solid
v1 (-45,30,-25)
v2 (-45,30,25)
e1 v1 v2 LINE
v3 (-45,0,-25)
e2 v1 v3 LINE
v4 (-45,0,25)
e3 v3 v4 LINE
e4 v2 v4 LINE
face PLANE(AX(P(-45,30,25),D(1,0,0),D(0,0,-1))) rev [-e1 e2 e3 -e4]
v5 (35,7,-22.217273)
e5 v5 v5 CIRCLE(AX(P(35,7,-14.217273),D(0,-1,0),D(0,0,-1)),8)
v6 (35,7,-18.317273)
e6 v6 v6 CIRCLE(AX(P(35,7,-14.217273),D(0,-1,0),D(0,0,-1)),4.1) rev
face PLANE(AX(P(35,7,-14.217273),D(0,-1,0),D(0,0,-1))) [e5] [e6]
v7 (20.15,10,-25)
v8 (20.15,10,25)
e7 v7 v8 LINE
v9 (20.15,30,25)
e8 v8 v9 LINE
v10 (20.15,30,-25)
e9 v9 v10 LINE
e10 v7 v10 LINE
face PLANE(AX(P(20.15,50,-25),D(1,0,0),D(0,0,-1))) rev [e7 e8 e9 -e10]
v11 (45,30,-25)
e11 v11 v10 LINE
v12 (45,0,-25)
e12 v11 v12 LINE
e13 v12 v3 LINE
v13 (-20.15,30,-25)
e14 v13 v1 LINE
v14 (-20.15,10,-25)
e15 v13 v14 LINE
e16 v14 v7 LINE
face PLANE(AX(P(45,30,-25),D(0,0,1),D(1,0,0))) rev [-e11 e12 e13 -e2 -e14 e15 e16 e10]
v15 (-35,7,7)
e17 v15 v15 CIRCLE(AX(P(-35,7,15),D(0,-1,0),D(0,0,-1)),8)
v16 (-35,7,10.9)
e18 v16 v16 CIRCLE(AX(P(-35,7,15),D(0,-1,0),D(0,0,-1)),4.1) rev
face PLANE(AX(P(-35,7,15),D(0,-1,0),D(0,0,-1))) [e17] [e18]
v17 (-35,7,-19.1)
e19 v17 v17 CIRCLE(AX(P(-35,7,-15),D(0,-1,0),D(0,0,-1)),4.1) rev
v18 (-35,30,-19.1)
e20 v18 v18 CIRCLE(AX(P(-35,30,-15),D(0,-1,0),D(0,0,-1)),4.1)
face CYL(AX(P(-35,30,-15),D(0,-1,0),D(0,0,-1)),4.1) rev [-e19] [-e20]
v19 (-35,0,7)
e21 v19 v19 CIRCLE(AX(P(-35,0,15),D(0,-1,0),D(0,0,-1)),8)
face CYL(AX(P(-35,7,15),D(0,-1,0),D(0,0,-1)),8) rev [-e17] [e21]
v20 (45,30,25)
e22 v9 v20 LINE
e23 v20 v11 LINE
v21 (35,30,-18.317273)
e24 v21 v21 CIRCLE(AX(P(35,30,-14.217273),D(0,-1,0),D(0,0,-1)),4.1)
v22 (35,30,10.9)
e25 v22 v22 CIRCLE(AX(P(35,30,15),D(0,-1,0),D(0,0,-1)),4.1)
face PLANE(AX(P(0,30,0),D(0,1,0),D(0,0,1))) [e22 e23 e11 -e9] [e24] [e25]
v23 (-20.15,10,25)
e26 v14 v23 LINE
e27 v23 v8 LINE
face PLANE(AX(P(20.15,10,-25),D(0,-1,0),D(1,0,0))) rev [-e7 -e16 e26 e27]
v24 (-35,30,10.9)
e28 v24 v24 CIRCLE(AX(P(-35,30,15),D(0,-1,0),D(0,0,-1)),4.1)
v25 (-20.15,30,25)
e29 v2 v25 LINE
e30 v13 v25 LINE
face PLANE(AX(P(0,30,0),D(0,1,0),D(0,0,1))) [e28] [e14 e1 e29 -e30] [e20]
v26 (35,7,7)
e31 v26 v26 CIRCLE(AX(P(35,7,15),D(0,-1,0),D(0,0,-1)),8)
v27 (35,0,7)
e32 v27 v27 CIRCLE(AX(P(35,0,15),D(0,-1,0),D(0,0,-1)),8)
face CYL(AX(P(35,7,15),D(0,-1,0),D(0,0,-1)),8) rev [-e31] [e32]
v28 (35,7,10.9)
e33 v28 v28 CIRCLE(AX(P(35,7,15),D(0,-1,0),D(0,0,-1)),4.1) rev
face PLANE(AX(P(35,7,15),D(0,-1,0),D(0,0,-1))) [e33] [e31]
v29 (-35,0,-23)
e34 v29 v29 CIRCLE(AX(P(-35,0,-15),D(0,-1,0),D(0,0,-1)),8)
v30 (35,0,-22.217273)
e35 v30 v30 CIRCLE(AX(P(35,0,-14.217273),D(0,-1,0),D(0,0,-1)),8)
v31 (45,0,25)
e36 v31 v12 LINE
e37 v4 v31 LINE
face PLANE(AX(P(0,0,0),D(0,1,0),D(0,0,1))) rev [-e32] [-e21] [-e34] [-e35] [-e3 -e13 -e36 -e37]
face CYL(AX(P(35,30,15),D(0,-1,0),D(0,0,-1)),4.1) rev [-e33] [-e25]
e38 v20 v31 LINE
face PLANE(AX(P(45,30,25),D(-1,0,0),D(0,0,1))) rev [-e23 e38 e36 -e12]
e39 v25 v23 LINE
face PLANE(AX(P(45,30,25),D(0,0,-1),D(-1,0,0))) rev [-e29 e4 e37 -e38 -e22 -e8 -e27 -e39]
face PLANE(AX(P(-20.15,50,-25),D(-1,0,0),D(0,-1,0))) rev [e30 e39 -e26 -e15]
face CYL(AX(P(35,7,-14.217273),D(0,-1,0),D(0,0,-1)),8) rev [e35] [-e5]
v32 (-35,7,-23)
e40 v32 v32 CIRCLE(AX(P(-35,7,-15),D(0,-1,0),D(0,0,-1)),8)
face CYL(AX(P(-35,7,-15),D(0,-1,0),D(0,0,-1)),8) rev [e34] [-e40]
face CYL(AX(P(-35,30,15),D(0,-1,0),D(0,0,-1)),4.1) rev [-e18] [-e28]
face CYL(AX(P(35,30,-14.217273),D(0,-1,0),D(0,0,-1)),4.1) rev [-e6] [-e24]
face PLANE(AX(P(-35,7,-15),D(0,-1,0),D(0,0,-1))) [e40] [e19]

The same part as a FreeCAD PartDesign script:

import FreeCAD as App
import Part
import Sketcher
Q = App.Units.Quantity

doc = App.newDocument("Part")
body = doc.addObject("PartDesign::Body", "Body")

sketch1 = doc.addObject("Sketcher::SketchObject", "Sketch")
body.addObject(sketch1)
sketch1.AttachmentSupport = (doc.XZ_Plane, [""])
sketch1.MapMode = "FlatFace"
sketch1.addGeometry([
    Part.LineSegment(App.Vector(-45, -25, 0), App.Vector(-45, 25, 0)),
    Part.LineSegment(App.Vector(-45, 25, 0), App.Vector(45, 25, 0)),
    Part.LineSegment(App.Vector(45, 25, 0), App.Vector(45, -25, 0)),
    Part.LineSegment(App.Vector(45, -25, 0), App.Vector(-45, -25, 0)),
], False)
sketch1.addConstraint([
    Sketcher.Constraint("Coincident", 0, 2, 1, 1),
    Sketcher.Constraint("Coincident", 1, 2, 2, 1),
    Sketcher.Constraint("Coincident", 2, 2, 3, 1),
    Sketcher.Constraint("Coincident", 3, 2, 0, 1),
    Sketcher.Constraint("Vertical", 0),
    Sketcher.Constraint("Horizontal", 1),
    Sketcher.Constraint("Vertical", 2),
    Sketcher.Constraint("Horizontal", 3),
    Sketcher.Constraint("Symmetric", 0, 2, 2, 2, -1, 1),
    Sketcher.Constraint("DistanceX", 1, 1, 1, 2, Q("90 mm")),
    Sketcher.Constraint("DistanceY", 0, 1, 0, 2, Q("50 mm")),
])
pad1 = doc.addObject("PartDesign::Pad", "Pad")
body.addObject(pad1)
pad1.Profile = sketch1
pad1.Length = 30
pad1.Reversed = True

sketch2 = doc.addObject("Sketcher::SketchObject", "Sketch001")
body.addObject(sketch2)
sketch2.AttachmentSupport = (doc.XY_Plane, [""])
sketch2.MapMode = "FlatFace"
sketch2.AttachmentOffset = App.Placement(App.Vector(0, 0, 25), App.Rotation())
sketch2.addGeometry([
    Part.LineSegment(App.Vector(-20.15, 50, 0), App.Vector(-20.15, 10, 0)),
    Part.LineSegment(App.Vector(-20.15, 10, 0), App.Vector(20.15, 10, 0)),
    Part.LineSegment(App.Vector(20.15, 10, 0), App.Vector(20.15, 50, 0)),
    Part.LineSegment(App.Vector(20.15, 50, 0), App.Vector(-20.15, 50, 0)),
], False)
sketch2.addConstraint([
    Sketcher.Constraint("Coincident", 0, 2, 1, 1),
    Sketcher.Constraint("Coincident", 1, 2, 2, 1),
    Sketcher.Constraint("Coincident", 2, 2, 3, 1),
    Sketcher.Constraint("Coincident", 3, 2, 0, 1),
    Sketcher.Constraint("Vertical", 0),
    Sketcher.Constraint("Horizontal", 1),
    Sketcher.Constraint("Vertical", 2),
    Sketcher.Constraint("Horizontal", 3),
    Sketcher.Constraint("DistanceY", 0, 2, 0, 1, Q("40 mm")),
    Sketcher.Constraint("DistanceX", 1, 1, 1, 2, Q("40.3 mm")),
    Sketcher.Constraint("DistanceY", -1, 1, 0, 2, Q("10 mm")),
    Sketcher.Constraint("DistanceX", 0, 2, -1, 1, Q("20.15 mm")),
])
pocket1 = doc.addObject("PartDesign::Pocket", "Pocket")
body.addObject(pocket1)
pocket1.Profile = sketch2
pocket1.Type = "ThroughAll"

sketch3 = doc.addObject("Sketcher::SketchObject", "Sketch002")
body.addObject(sketch3)
sketch3.AttachmentSupport = (doc.XZ_Plane, [""])
sketch3.MapMode = "FlatFace"
sketch3.addGeometry([
    Part.Circle(App.Vector(-35, 15, 0), App.Vector(0, 0, 1), 4.1),
    Part.Circle(App.Vector(-35, -15, 0), App.Vector(0, 0, 1), 4.1),
    Part.Circle(App.Vector(35, -14.217273, 0), App.Vector(0, 0, 1), 4.1),
    Part.Circle(App.Vector(35, 15, 0), App.Vector(0, 0, 1), 4.1),
], False)
sketch3.addConstraint([
    Sketcher.Constraint("Equal", 0, 1),
    Sketcher.Constraint("Equal", 1, 2),
    Sketcher.Constraint("Equal", 2, 3),
    Sketcher.Constraint("Symmetric", 1, 3, 3, 3, -1, 1),
    Sketcher.Constraint("Symmetric", 0, 3, 3, 3, -2),
    Sketcher.Constraint("Vertical", 2, 3, 3, 3),
    Sketcher.Constraint("Diameter", 0, Q("8.2 mm")),
    Sketcher.Constraint("DistanceX", 0, 3, -1, 1, Q("35 mm")),
    Sketcher.Constraint("DistanceY", -1, 1, 0, 3, Q("15 mm")),
    Sketcher.Constraint("DistanceY", 2, 3, -1, 1, Q("14.217273 mm")),
])
pocket2 = doc.addObject("PartDesign::Pocket", "Pocket001")
body.addObject(pocket2)
pocket2.Profile = sketch3
pocket2.Type = "ThroughAll"

sketch4 = doc.addObject("Sketcher::SketchObject", "Sketch003")
body.addObject(sketch4)
sketch4.AttachmentSupport = (doc.XZ_Plane, [""])
sketch4.MapMode = "FlatFace"
sketch4.addGeometry([
    Part.Circle(App.Vector(35, 15, 0), App.Vector(0, 0, 1), 8),
    Part.Circle(App.Vector(35, -14.217273, 0), App.Vector(0, 0, 1), 8),
    Part.Circle(App.Vector(-35, 15, 0), App.Vector(0, 0, 1), 8),
    Part.Circle(App.Vector(-35, -15, 0), App.Vector(0, 0, 1), 8),
], False)
sketch4.addConstraint([
    Sketcher.Constraint("Equal", 0, 1),
    Sketcher.Constraint("Equal", 1, 2),
    Sketcher.Constraint("Equal", 2, 3),
    Sketcher.Constraint("Symmetric", 0, 3, 3, 3, -1, 1),
    Sketcher.Constraint("Symmetric", 0, 3, 2, 3, -2),
    Sketcher.Constraint("Vertical", 0, 3, 1, 3),
    Sketcher.Constraint("Diameter", 0, Q("16 mm")),
    Sketcher.Constraint("DistanceX", -1, 1, 0, 3, Q("35 mm")),
    Sketcher.Constraint("DistanceY", -1, 1, 0, 3, Q("15 mm")),
    Sketcher.Constraint("DistanceY", 1, 3, -1, 1, Q("14.217273 mm")),
])
pocket3 = doc.addObject("PartDesign::Pocket", "Pocket002")
body.addObject(pocket3)
pocket3.Profile = sketch4
pocket3.Length = 7

doc.recompute()
